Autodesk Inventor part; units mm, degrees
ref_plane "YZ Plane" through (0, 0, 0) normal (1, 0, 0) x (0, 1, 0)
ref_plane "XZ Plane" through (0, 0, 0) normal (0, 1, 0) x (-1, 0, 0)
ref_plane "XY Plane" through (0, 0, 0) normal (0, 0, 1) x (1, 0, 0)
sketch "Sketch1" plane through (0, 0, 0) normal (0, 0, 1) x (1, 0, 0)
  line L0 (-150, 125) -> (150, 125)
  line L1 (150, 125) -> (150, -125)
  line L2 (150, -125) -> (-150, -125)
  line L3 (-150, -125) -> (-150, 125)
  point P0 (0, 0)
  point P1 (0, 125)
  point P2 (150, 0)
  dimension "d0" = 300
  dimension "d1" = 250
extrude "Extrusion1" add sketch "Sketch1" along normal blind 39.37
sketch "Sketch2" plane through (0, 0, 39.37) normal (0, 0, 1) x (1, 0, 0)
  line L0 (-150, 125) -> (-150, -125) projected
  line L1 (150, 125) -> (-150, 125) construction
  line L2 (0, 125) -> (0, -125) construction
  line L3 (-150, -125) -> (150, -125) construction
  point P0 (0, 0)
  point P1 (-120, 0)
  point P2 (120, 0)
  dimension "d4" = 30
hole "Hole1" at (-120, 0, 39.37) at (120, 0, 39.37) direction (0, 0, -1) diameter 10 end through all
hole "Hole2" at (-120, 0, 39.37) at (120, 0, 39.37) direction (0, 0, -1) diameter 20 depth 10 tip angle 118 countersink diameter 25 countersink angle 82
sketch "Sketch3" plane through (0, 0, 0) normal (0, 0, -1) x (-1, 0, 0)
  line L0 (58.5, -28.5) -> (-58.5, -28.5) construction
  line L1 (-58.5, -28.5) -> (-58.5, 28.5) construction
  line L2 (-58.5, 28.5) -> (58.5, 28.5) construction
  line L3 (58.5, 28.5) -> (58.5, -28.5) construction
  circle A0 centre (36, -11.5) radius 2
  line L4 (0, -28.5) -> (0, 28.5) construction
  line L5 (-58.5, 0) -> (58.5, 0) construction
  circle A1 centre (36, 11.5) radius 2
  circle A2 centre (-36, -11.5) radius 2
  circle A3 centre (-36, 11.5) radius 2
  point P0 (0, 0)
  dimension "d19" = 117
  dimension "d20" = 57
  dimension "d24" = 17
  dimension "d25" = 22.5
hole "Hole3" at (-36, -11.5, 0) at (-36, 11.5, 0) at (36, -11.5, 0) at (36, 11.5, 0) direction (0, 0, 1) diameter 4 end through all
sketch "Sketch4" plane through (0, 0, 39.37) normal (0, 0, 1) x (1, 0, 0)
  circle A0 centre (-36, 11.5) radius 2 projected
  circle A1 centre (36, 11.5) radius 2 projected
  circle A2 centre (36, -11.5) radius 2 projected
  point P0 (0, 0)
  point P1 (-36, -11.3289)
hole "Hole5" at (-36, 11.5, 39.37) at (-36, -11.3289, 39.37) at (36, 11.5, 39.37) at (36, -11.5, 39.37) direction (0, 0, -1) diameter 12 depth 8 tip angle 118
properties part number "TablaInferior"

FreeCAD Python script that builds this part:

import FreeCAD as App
import Part
import Sketcher

V = App.Vector
Q = App.Units.Quantity

doc = App.newDocument("Part")
body = doc.addObject("PartDesign::Body", "Body")

# Sketch on XY plane
sketch1 = body.newObject("Sketcher::SketchObject", "Sketch")
sketch1.AttachmentSupport = (doc.getObject("XY_Plane"), [""])
sketch1.MapMode = "FlatFace"
sketch1.addGeometry([
    Part.LineSegment(V(150, 125, 0), V(-150, 125, 0)),
    Part.LineSegment(V(-150, 125, 0), V(-150, -125, 0)),
    Part.LineSegment(V(-150, -125, 0), V(150, -125, 0)),
    Part.LineSegment(V(150, -125, 0), V(150, 125, 0)),
], False)
sketch1.addConstraint([
    Sketcher.Constraint("Coincident", 0, 2, 1, 1),
    Sketcher.Constraint("Coincident", 1, 2, 2, 1),
    Sketcher.Constraint("Coincident", 2, 2, 3, 1),
    Sketcher.Constraint("Coincident", 3, 2, 0, 1),
    Sketcher.Constraint("Horizontal", 0),
    Sketcher.Constraint("Vertical", 1),
    Sketcher.Constraint("Horizontal", 2),
    Sketcher.Constraint("Vertical", 3),
    Sketcher.Constraint("Symmetric", 0, 2, 2, 2, -1, 1),
    Sketcher.Constraint("DistanceX", 0, 2, 0, 1, Q("300 mm")),
    Sketcher.Constraint("DistanceY", 1, 2, 1, 1, Q("250 mm")),
])
pad1 = body.newObject("PartDesign::Pad", "Pad")
pad1.Profile = sketch1
pad1.Length = 39.37

# Sketch on XY plane
sketch2 = body.newObject("Sketcher::SketchObject", "Sketch001")
sketch2.AttachmentSupport = (doc.getObject("XY_Plane"), [""])
sketch2.MapMode = "FlatFace"
sketch2.AttachmentOffset = App.Placement(V(0, 0, 39.37), App.Rotation())
sketch2.addGeometry([
    Part.Circle(V(-120, 0, 0), V(0, 0, 1), 5),
    Part.Circle(V(120, 0, 0), V(0, 0, 1), 5),
], False)
sketch2.addConstraint([
    Sketcher.Constraint("Equal", 0, 1),
    Sketcher.Constraint("Symmetric", 0, 3, 1, 3, -1, 1),
    Sketcher.Constraint("PointOnObject", 0, 3, -1),
    Sketcher.Constraint("Diameter", 0, Q("10 mm")),
    Sketcher.Constraint("DistanceX", 0, 3, -1, 1, Q("120 mm")),
])
doc.recompute()
hole = body.newObject("PartDesign::Hole", "Hole")
hole.Profile = sketch2
hole.ThreadType = "None"
hole.Diameter = 10
hole.DepthType = "ThroughAll"

# Sketch on XY plane
sketch3 = body.newObject("Sketcher::SketchObject", "Sketch002")
sketch3.AttachmentSupport = (doc.getObject("XY_Plane"), [""])
sketch3.MapMode = "FlatFace"
sketch3.AttachmentOffset = App.Placement(V(0, 0, 39.37), App.Rotation())
sketch3.addGeometry([
    Part.Circle(V(-120, 0, 0), V(0, 0, 1), 10),
    Part.Circle(V(120, 0, 0), V(0, 0, 1), 10),
], False)
sketch3.addConstraint([
    Sketcher.Constraint("Equal", 0, 1),
    Sketcher.Constraint("Symmetric", 0, 3, 1, 3, -1, 1),
    Sketcher.Constraint("PointOnObject", 0, 3, -1),
    Sketcher.Constraint("Diameter", 0, Q("20 mm")),
    Sketcher.Constraint("DistanceX", 0, 3, -1, 1, Q("120 mm")),
])
doc.recompute()
hole2 = body.newObject("PartDesign::Hole", "Hole001")
hole2.Profile = sketch3
hole2.ThreadType = "None"
hole2.Diameter = 20
hole2.DepthType = "Dimension"
hole2.Depth = 10
hole2.DrillPoint = "Angled"
hole2.DrillPointAngle = 118
hole2.HoleCutType = "Countersink"
hole2.HoleCutDiameter = 25
hole2.HoleCutCountersinkAngle = 82

# Sketch on XY plane
sketch4 = body.newObject("Sketcher::SketchObject", "Sketch003")
sketch4.AttachmentSupport = (doc.getObject("XY_Plane"), [""])
sketch4.MapMode = "FlatFace"
sketch4.addGeometry([
    Part.Circle(V(-36, -11.5, 0), V(0, 0, 1), 2),
    Part.Circle(V(-36, 11.5, 0), V(0, 0, 1), 2),
    Part.Circle(V(36, -11.5, 0), V(0, 0, 1), 2),
    Part.Circle(V(36, 11.5, 0), V(0, 0, 1), 2),
], False)
sketch4.addConstraint([
    Sketcher.Constraint("Equal", 0, 1),
    Sketcher.Constraint("Equal", 1, 2),
    Sketcher.Constraint("Equal", 2, 3),
    Sketcher.Constraint("Symmetric", 1, 3, 2, 3, -1, 1),
    Sketcher.Constraint("Symmetric", 0, 3, 3, 3, -1, 1),
    Sketcher.Constraint("Symmetric", 0, 3, 2, 3, -2),
    Sketcher.Constraint("Diameter", 0, Q("4 mm")),
    Sketcher.Constraint("DistanceX", 0, 3, -1, 1, Q("36 mm")),
    Sketcher.Constraint("DistanceY", 0, 3, 1, 3, Q("23 mm")),
])
doc.recompute()
hole3 = body.newObject("PartDesign::Hole", "Hole002")
hole3.Profile = sketch4
hole3.ThreadType = "None"
hole3.Diameter = 4
hole3.DepthType = "ThroughAll"
hole3.Reversed = True

# Sketch on XY plane
sketch5 = body.newObject("Sketcher::SketchObject", "Sketch004")
sketch5.AttachmentSupport = (doc.getObject("XY_Plane"), [""])
sketch5.MapMode = "FlatFace"
sketch5.AttachmentOffset = App.Placement(V(0, 0, 39.37), App.Rotation())
sketch5.addGeometry([
    Part.Circle(V(-36, 12, 0), V(0, 0, 1), 6),
    Part.Circle(V(-36, -11, 0), V(0, 0, 1), 6),
    Part.Circle(V(36, 12, 0), V(0, 0, 1), 6),
    Part.Circle(V(36, -12, 0), V(0, 0, 1), 6),
], False)
sketch5.addConstraint([
    Sketcher.Constraint("Equal", 0, 1),
    Sketcher.Constraint("Equal", 1, 2),
    Sketcher.Constraint("Equal", 2, 3),
    Sketcher.Constraint("Symmetric", 0, 3, 3, 3, -1, 1),
    Sketcher.Constraint("Symmetric", 0, 3, 2, 3, -2),
    Sketcher.Constraint("Vertical", 0, 3, 1, 3),
    Sketcher.Constraint("Diameter", 0, Q("12 mm")),
    Sketcher.Constraint("DistanceX", 0, 3, -1, 1, Q("36 mm")),
    Sketcher.Constraint("DistanceY", 3, 3, 2, 3, Q("23 mm")),
    Sketcher.Constraint("DistanceY", 1, 3, -1, 1, Q("11.329 mm")),
])
doc.recompute()
hole4 = body.newObject("PartDesign::Hole", "Hole003")
hole4.Profile = sketch5
hole4.ThreadType = "None"
hole4.Diameter = 12
hole4.DepthType = "Dimension"
hole4.Depth = 8
hole4.DrillPoint = "Angled"
hole4.DrillPointAngle = 118

doc.recompute()
